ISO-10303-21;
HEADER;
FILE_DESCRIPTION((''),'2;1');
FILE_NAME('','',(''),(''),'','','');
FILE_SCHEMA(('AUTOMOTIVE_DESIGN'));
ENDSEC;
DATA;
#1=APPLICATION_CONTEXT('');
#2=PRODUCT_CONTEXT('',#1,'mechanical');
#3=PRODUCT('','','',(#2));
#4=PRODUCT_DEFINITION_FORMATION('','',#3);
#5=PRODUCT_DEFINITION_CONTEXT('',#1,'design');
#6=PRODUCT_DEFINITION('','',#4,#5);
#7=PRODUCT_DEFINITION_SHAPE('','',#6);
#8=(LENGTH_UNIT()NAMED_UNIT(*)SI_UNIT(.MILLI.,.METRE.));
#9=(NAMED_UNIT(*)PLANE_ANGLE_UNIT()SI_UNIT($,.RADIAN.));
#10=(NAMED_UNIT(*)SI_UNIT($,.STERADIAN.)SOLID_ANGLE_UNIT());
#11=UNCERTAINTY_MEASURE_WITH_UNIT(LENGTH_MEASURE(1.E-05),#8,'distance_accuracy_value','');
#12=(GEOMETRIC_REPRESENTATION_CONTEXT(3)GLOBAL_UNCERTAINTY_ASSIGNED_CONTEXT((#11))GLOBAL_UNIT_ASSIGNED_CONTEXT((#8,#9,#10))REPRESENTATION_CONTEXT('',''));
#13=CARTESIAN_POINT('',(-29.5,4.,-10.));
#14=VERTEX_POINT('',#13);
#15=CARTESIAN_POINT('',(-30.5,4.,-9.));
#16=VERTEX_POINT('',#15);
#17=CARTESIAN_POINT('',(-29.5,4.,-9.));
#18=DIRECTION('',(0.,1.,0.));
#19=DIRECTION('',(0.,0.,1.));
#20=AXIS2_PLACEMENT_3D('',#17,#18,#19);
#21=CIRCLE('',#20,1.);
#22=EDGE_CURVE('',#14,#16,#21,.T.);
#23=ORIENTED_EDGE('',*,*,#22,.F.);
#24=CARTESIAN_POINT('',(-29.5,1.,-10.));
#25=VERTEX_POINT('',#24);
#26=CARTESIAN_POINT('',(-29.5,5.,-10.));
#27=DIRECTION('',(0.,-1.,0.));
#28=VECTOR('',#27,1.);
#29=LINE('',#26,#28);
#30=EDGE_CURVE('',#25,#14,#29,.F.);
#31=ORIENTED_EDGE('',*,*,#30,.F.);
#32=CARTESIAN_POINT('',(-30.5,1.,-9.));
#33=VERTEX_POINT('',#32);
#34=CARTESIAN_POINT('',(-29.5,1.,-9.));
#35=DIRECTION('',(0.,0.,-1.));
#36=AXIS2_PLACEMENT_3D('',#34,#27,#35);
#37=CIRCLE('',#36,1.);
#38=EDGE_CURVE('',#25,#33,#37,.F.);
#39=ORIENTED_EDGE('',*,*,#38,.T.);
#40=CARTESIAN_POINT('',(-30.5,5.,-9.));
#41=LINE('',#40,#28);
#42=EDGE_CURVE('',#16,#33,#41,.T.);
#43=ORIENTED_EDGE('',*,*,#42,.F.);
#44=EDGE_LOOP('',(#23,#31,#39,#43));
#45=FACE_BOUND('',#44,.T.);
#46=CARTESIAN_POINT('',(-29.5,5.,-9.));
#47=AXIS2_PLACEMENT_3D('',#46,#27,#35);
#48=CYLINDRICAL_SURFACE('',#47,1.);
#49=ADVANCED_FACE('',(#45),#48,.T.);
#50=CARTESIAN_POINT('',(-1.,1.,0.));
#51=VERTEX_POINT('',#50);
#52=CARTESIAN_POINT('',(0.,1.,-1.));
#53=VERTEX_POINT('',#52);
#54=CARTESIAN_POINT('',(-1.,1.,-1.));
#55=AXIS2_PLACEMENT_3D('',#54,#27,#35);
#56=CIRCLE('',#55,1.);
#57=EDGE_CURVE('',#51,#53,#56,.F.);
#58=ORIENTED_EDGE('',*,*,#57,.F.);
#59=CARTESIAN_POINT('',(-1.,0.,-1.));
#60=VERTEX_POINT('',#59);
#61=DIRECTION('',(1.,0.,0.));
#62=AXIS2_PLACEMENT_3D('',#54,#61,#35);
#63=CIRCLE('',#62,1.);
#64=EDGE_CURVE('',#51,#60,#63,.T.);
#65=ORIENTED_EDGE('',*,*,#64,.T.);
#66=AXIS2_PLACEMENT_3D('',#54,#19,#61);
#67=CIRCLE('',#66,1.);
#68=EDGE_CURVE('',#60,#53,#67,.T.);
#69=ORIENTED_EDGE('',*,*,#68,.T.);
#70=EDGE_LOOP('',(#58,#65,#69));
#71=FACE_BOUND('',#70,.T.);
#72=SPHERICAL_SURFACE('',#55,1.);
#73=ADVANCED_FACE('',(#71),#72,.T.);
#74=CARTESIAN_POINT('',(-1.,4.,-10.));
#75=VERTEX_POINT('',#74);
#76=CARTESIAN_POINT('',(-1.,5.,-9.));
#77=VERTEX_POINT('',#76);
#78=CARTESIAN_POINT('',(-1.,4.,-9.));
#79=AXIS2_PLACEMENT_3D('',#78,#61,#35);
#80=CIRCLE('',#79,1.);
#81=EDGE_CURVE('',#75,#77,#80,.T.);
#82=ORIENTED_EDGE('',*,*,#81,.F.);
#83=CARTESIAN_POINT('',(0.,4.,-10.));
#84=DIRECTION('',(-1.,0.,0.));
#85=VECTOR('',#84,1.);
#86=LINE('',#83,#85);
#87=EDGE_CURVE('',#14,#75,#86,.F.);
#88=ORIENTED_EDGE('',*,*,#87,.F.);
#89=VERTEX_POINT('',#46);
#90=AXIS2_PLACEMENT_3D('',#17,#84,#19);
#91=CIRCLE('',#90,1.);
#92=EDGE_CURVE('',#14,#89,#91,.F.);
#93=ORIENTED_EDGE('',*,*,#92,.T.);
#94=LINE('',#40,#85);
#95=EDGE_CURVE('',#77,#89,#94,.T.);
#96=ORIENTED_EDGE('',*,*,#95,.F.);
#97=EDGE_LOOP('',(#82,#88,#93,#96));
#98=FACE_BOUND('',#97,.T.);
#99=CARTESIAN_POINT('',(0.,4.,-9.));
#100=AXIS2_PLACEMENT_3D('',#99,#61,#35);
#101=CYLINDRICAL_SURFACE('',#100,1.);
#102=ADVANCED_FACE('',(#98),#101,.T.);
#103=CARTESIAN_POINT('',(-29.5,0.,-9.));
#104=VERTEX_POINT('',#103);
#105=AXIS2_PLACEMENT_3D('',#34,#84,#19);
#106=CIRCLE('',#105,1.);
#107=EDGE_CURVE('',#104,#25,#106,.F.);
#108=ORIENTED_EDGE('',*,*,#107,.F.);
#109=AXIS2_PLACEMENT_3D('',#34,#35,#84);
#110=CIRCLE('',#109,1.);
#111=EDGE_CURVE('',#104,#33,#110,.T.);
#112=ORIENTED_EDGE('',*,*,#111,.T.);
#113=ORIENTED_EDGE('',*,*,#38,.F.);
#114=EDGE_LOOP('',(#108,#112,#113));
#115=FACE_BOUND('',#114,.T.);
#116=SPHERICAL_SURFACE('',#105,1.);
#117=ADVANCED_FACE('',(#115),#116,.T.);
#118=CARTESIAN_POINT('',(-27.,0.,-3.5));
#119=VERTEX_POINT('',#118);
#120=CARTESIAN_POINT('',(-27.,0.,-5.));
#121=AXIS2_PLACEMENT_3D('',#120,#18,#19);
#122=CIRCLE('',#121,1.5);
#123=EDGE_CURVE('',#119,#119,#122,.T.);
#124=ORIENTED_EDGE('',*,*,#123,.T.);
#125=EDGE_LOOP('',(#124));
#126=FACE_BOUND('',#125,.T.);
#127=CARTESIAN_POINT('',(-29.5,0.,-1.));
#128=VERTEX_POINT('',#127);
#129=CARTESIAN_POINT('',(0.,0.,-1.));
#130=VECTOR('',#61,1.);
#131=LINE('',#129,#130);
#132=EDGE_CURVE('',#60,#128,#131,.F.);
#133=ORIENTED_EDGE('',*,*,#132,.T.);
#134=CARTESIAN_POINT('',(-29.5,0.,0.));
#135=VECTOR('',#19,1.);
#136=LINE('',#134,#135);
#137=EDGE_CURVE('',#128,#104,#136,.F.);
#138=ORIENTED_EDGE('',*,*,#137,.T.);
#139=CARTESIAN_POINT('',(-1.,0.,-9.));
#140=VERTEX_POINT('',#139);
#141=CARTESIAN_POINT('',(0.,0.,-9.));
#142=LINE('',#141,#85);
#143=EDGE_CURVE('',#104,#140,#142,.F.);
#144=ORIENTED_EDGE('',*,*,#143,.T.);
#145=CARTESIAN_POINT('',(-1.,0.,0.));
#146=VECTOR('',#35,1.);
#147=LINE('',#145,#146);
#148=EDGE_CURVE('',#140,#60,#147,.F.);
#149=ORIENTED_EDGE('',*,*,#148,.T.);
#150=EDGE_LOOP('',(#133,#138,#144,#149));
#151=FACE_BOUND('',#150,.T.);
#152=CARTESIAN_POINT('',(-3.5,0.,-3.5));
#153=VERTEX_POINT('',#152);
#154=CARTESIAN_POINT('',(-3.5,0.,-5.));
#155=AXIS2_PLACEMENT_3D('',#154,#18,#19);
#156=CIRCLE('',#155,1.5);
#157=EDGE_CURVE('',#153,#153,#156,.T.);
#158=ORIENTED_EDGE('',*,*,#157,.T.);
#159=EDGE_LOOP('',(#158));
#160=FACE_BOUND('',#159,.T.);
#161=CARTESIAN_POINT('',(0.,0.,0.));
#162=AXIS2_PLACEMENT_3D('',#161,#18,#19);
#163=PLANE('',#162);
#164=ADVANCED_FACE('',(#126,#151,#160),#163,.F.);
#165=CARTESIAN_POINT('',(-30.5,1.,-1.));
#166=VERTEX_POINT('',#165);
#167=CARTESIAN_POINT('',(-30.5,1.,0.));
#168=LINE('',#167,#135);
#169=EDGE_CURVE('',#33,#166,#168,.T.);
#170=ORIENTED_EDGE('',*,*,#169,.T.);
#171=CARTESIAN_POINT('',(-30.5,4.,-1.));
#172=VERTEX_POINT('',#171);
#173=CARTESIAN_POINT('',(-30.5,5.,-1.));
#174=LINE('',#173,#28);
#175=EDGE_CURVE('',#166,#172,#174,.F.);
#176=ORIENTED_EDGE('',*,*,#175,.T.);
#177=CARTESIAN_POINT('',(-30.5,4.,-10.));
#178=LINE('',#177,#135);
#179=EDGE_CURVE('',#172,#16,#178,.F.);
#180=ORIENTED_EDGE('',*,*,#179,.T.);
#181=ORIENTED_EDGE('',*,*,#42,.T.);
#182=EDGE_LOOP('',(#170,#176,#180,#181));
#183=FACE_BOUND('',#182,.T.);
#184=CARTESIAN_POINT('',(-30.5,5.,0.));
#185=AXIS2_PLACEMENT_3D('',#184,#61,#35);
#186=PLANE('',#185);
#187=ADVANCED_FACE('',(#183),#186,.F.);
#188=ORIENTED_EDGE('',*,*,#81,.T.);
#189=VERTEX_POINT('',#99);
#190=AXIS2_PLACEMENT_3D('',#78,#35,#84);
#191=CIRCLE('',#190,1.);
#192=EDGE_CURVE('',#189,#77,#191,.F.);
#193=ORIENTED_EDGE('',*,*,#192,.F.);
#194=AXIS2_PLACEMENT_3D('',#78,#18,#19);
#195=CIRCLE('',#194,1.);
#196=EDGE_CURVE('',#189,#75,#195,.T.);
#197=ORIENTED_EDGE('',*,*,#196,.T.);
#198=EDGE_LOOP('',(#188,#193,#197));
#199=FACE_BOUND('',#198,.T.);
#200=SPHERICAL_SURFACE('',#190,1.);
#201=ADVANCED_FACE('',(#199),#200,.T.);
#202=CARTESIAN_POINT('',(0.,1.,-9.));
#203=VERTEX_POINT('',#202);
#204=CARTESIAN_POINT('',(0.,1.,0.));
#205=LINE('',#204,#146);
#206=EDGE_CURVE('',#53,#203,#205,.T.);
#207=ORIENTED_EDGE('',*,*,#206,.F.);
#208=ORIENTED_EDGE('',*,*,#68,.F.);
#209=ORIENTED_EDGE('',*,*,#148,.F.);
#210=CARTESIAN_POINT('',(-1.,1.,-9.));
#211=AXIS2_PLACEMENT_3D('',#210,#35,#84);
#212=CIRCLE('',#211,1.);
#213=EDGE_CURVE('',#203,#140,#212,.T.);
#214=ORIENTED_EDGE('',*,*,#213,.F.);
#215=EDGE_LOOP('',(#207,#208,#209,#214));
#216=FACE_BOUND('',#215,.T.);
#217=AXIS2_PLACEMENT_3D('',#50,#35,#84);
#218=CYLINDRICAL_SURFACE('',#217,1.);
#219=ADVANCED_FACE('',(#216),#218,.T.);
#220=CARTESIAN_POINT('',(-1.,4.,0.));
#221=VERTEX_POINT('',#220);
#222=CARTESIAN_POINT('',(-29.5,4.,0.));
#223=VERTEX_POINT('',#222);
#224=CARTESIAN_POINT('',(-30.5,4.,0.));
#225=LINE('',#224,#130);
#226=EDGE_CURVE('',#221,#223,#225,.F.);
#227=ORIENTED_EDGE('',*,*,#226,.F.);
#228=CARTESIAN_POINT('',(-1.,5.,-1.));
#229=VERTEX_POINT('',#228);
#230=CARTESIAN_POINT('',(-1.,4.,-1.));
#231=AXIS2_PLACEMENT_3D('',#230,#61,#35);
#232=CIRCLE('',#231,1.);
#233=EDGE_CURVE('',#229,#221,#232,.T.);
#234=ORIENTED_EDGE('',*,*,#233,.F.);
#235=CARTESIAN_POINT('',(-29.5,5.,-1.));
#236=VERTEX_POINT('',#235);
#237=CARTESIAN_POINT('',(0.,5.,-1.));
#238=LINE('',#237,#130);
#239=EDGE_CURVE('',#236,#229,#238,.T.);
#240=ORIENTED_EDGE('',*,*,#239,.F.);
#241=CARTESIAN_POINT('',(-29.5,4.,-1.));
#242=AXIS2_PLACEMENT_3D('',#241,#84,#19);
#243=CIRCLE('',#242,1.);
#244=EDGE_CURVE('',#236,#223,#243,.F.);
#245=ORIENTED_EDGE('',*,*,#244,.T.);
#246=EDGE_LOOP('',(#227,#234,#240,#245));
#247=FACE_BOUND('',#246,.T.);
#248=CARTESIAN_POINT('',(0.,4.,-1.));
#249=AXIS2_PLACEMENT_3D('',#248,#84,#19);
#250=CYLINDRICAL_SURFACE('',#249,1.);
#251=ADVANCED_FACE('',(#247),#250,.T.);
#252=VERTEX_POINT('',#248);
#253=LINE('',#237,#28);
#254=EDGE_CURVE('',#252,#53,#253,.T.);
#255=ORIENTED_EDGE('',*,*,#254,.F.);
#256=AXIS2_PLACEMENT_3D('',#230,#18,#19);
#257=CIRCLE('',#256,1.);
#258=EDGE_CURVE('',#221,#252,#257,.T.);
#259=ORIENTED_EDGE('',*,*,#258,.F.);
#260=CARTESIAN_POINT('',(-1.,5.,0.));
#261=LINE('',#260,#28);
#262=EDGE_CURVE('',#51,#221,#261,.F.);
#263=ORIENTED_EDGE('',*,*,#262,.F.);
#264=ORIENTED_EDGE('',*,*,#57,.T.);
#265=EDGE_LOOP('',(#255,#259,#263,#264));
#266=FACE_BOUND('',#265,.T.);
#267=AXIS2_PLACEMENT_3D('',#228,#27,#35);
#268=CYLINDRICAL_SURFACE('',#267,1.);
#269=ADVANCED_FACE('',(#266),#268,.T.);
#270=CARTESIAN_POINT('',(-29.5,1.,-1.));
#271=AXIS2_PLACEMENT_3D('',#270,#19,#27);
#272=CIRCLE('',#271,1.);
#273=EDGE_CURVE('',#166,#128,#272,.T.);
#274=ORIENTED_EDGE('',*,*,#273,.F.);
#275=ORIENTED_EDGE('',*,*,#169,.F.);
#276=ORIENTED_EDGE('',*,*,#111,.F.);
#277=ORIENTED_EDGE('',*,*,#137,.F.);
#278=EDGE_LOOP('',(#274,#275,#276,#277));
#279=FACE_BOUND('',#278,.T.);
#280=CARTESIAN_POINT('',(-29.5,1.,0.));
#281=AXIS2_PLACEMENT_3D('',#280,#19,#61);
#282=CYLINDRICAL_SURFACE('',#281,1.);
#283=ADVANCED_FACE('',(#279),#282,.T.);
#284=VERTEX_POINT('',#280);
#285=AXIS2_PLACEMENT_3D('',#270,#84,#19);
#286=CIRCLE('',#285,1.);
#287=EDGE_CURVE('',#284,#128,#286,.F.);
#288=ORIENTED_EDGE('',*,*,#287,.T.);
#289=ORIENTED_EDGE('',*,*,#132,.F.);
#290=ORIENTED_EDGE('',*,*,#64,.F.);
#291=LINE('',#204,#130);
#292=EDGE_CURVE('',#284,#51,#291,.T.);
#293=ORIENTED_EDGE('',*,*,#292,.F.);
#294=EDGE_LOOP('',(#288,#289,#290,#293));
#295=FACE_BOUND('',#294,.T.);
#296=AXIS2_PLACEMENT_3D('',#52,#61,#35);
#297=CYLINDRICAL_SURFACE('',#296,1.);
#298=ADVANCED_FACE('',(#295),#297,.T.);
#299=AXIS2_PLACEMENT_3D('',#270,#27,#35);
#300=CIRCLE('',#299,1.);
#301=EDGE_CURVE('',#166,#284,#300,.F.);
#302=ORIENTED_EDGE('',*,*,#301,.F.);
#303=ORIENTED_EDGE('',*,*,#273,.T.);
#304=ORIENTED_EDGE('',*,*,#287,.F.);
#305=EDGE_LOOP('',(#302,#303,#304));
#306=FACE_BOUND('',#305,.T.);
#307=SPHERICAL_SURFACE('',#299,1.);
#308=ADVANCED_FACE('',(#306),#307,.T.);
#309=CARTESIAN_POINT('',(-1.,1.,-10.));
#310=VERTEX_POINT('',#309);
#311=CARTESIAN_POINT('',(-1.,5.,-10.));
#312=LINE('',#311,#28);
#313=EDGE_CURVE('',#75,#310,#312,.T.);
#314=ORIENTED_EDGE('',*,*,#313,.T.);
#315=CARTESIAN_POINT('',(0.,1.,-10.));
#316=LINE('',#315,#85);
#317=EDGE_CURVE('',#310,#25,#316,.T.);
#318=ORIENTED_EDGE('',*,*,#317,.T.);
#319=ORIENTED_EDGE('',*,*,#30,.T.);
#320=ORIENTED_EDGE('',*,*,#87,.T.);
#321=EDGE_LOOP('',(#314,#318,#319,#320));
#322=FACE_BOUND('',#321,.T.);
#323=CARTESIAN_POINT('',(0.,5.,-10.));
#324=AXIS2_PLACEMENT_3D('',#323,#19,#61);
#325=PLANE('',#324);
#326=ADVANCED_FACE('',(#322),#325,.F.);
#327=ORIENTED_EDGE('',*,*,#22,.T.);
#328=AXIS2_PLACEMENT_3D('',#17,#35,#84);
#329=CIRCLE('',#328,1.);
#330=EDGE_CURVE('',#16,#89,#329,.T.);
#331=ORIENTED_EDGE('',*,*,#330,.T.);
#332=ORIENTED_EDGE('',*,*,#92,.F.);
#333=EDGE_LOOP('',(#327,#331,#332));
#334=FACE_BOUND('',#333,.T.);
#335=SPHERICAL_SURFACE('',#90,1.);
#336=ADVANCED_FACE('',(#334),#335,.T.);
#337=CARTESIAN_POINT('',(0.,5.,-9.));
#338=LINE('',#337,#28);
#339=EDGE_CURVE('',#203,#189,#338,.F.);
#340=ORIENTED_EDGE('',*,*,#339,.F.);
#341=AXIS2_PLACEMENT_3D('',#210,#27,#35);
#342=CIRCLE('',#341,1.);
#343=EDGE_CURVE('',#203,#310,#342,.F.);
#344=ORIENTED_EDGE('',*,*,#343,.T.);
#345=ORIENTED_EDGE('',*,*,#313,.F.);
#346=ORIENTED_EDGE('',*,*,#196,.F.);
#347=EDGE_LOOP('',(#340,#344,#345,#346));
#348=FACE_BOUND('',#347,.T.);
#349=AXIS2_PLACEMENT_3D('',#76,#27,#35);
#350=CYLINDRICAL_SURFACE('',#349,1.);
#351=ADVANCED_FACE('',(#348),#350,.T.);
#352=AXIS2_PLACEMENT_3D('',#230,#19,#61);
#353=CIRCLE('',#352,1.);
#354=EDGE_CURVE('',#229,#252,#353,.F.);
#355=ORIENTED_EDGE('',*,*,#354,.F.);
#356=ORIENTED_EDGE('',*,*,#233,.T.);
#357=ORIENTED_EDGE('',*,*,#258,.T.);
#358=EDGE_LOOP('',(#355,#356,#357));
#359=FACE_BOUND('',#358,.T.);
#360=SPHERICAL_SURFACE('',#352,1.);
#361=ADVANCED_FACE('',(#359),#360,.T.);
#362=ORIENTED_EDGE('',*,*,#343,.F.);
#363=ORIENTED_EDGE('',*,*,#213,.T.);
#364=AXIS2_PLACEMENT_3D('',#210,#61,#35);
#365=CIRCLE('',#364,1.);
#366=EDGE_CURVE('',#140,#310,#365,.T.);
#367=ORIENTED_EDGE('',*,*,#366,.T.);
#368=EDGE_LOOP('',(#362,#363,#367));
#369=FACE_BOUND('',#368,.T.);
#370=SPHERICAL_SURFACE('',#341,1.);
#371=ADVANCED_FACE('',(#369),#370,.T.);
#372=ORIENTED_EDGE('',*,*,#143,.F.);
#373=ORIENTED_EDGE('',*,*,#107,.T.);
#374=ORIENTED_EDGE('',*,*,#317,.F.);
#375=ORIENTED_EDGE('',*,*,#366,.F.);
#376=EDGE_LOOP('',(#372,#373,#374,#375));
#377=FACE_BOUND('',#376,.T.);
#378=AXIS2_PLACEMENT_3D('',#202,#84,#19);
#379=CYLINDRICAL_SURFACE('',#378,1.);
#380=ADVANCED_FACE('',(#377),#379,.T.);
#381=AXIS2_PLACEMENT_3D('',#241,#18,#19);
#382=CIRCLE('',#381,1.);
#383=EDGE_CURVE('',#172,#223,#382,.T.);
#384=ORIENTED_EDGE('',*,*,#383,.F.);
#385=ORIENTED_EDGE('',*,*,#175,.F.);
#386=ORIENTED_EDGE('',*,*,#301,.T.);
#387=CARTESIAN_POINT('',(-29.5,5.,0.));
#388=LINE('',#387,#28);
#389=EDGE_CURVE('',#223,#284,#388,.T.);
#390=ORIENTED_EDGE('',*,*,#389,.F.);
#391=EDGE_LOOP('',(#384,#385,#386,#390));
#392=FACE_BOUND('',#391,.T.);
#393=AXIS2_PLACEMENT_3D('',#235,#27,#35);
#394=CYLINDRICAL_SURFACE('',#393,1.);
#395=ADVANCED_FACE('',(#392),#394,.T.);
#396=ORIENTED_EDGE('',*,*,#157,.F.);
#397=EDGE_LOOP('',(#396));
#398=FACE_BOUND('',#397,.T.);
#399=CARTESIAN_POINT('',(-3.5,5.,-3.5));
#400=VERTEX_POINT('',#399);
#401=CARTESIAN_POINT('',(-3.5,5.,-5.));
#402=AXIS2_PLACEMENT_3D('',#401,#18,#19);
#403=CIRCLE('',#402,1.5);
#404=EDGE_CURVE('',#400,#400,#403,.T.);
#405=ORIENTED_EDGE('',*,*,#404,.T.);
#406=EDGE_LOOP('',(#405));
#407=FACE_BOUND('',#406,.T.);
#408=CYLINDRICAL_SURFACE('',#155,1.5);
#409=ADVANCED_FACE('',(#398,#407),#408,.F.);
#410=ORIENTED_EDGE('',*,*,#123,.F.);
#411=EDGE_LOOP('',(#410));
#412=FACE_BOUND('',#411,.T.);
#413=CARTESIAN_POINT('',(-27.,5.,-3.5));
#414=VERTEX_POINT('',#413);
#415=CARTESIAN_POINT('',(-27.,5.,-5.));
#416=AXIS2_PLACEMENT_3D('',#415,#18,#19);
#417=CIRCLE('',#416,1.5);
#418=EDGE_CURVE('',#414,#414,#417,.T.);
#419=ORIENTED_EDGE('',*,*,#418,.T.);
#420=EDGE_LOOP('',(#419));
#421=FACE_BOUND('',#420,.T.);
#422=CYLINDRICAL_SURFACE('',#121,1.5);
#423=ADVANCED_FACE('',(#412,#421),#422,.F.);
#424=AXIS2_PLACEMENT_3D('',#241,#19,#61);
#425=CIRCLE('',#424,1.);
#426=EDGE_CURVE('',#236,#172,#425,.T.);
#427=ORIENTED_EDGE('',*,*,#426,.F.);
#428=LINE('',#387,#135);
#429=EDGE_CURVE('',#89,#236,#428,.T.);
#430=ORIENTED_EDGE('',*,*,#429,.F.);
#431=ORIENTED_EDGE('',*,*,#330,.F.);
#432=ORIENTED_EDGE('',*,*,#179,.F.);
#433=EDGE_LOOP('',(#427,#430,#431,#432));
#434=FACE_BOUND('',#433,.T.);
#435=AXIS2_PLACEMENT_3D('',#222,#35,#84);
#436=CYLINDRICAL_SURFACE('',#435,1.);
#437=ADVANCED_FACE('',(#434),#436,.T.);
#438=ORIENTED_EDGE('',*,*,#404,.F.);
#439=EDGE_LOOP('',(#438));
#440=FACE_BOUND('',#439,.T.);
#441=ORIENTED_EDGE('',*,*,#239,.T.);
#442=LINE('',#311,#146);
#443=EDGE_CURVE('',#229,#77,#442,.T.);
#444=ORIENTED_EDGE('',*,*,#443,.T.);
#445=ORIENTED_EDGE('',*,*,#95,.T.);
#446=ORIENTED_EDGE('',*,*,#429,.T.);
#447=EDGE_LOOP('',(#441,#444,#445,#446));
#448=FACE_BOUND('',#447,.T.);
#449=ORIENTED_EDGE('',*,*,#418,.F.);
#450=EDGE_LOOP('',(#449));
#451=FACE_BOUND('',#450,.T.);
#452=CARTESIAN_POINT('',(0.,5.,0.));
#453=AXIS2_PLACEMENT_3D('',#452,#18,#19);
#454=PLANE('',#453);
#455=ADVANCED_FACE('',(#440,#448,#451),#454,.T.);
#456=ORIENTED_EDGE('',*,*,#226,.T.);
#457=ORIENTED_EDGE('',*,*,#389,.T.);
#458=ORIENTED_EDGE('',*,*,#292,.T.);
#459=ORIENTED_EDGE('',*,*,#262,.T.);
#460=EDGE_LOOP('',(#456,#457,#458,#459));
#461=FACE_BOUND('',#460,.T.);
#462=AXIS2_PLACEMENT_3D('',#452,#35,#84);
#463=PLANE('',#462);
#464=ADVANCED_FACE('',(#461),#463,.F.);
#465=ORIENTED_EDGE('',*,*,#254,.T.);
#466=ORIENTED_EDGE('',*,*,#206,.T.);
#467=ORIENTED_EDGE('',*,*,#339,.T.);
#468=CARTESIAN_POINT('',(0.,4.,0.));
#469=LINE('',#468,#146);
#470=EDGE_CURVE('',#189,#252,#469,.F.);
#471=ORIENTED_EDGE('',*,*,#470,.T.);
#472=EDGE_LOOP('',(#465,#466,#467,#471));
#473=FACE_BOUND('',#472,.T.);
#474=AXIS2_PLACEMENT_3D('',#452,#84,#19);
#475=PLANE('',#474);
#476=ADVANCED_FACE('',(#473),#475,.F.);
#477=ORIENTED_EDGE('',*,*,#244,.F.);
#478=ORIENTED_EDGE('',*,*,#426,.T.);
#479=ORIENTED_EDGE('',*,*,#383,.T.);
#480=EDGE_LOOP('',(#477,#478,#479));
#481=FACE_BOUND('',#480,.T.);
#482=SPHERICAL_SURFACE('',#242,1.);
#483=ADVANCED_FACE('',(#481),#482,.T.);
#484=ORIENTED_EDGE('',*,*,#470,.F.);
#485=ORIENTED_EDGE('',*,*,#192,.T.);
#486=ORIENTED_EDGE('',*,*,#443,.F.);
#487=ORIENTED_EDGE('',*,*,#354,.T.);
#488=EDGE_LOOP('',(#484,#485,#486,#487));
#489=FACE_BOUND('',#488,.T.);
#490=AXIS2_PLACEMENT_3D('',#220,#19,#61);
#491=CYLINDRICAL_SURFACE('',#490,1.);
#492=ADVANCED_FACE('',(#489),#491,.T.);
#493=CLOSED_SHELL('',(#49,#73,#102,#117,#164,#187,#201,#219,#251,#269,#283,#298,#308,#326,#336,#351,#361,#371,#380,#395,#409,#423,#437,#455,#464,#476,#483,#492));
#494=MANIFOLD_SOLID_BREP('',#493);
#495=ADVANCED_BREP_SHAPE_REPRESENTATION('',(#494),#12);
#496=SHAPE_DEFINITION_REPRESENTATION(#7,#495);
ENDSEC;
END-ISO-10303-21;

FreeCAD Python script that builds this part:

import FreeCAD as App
import Part
import Sketcher
Q = App.Units.Quantity


def edges_at(feature, points):
    """Names of the edges that pass closest to the given points."""
    edges = feature.Shape.Edges
    near = lambda p: min(range(len(edges)), key=lambda i: edges[i].distToShape(Part.Vertex(*p))[0])
    return sorted({f"Edge{near(p) + 1}" for p in points})


def add_polygon(sketch, points):
    """Adds a closed chain of lines whose ends are joined by coincident constraints."""
    first, n = sketch.GeometryCount, len(points)
    for a, b in zip(points, points[1:] + points[:1]):
        sketch.addGeometry(Part.LineSegment(App.Vector(*a, 0), App.Vector(*b, 0)), False)
    for i in range(n):
        sketch.addConstraint(Sketcher.Constraint("Coincident", first + i, 2, first + (i + 1) % n, 1))

doc = App.newDocument("Part")
body = doc.addObject("PartDesign::Body", "Body")

# Sketch on XZ plane
sketch1 = body.newObject("Sketcher::SketchObject", "Sketch")
sketch1.AttachmentSupport = (doc.getObject("XZ_Plane"), [""])
sketch1.MapMode = "FlatFace"
add_polygon(sketch1, [(-30.5, -10), (-30.5, 0), (0, 0), (0, -10)])  # lines 0-3
sketch1.addConstraint([
    Sketcher.Constraint("Vertical", 0),
    Sketcher.Constraint("Horizontal", 1),
    Sketcher.Constraint("Vertical", 2),
    Sketcher.Constraint("Horizontal", 3),
    Sketcher.Constraint("Coincident", 1, 2, -1, 1),
    Sketcher.Constraint("DistanceY", 0, 1, 0, 2, Q("10 mm")),
    Sketcher.Constraint("DistanceX", 1, 1, 1, 2, Q("30.5 mm")),
])
pad1 = body.newObject("PartDesign::Pad", "Pad")
pad1.Profile = sketch1
pad1.Length = 5
pad1.Reversed = True

# Sketch on XZ plane
sketch2 = body.newObject("Sketcher::SketchObject", "Sketch001")
sketch2.AttachmentSupport = (doc.getObject("XZ_Plane"), [""])
sketch2.MapMode = "FlatFace"
sketch2.AttachmentOffset = App.Placement(App.Vector(0, 0, -5), App.Rotation())
sketch2.addGeometry([
    Part.Circle(App.Vector(-27, -5, 0), App.Vector(0, 0, 1), 1.5),
    Part.Circle(App.Vector(-3.5, -5, 0), App.Vector(0, 0, 1), 1.5),
], False)
sketch2.addConstraint([
    Sketcher.Constraint("Equal", 0, 1),
    Sketcher.Constraint("Horizontal", 0, 3, 1, 3),
    Sketcher.Constraint("Diameter", 0, Q("3 mm")),
    Sketcher.Constraint("DistanceX", 0, 3, -1, 1, Q("27 mm")),
    Sketcher.Constraint("DistanceY", 0, 3, -1, 1, Q("5 mm")),
    Sketcher.Constraint("DistanceX", 1, 3, -1, 1, Q("3.5 mm")),
])
pocket1 = body.newObject("PartDesign::Pocket", "Pocket")
pocket1.Profile = sketch2
pocket1.Type = "ThroughAll"
pocket1.Midplane = True
doc.recompute()

fillet = body.newObject("PartDesign::Fillet", "Fillet")
fillet.Base = (pocket1, edges_at(pocket1, [
    (-30.5, 5, -5),
    (-15.25, 5, 0),
    (0, 5, -5),
    (-15.25, 0, 0),
    (-30.5, 0, -5),
    (-15.25, 0, -10),
    (0, 0, -5),
    (0, 2.5, 0),
    (-30.5, 2.5, 0),
    (-30.5, 2.5, -10),
    (0, 2.5, -10),
    (-15.25, 5, -10),
]))
fillet.Radius = 1

doc.recompute()
